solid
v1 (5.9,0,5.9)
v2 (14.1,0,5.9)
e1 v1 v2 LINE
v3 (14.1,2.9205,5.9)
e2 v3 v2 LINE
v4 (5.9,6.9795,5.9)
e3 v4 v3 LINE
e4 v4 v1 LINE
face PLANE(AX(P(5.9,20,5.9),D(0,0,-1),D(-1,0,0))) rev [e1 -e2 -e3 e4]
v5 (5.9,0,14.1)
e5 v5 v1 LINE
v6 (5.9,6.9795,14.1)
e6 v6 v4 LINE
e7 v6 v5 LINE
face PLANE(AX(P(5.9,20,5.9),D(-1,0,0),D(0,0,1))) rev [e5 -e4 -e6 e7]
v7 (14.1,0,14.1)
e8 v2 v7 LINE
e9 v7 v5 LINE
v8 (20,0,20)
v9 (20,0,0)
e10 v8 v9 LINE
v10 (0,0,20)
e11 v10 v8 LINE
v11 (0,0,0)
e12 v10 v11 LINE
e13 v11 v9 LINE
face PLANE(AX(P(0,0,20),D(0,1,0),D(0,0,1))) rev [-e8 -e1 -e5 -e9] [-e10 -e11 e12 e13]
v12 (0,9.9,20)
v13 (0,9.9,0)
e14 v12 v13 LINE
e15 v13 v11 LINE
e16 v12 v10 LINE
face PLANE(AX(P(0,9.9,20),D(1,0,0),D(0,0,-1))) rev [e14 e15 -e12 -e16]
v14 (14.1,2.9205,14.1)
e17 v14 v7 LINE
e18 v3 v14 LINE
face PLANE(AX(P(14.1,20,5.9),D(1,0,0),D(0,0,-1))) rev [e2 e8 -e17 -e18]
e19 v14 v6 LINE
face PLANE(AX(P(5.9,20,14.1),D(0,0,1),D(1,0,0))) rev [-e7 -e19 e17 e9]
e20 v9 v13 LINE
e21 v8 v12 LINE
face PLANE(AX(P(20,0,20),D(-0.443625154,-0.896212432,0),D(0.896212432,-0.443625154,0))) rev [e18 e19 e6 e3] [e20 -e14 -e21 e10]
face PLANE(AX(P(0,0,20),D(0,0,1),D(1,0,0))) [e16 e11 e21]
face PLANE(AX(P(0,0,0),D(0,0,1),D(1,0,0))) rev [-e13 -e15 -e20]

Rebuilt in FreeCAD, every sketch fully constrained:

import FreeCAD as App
import Part
import Sketcher
from FreeCAD import Vector
Q = App.Units.Quantity


def add_polygon(sketch, points):
    """Adds a closed chain of lines whose ends are joined by coincident constraints."""
    first, n = sketch.GeometryCount, len(points)
    for a, b in zip(points, points[1:] + points[:1]):
        sketch.addGeometry(Part.LineSegment(App.Vector(*a, 0), App.Vector(*b, 0)), False)
    for i in range(n):
        sketch.addConstraint(Sketcher.Constraint("Coincident", first + i, 2, first + (i + 1) % n, 1))

doc = App.newDocument("Part")
body = doc.addObject("PartDesign::Body", "Body")

sketch1 = doc.addObject("Sketcher::SketchObject", "Sketch")
body.addObject(sketch1)
sketch1.AttachmentSupport = (doc.XY_Plane, [""])
sketch1.MapMode = "FlatFace"
add_polygon(sketch1, [(0, 0), (20, 0), (0, 10)])
sketch1.addConstraint([
    Sketcher.Constraint("Horizontal", 0),
    Sketcher.Constraint("Vertical", 2),
    Sketcher.Constraint("Coincident", 2, 2, -1, 1),
    Sketcher.Constraint("DistanceX", 0, 1, 0, 2, Q("20 mm")),
    Sketcher.Constraint("DistanceY", 2, 2, 2, 1, Q("9.9 mm")),
])
pad1 = doc.addObject("PartDesign::Pad", "Pad")
body.addObject(pad1)
pad1.Profile = sketch1
pad1.Length = 20

sketch2 = doc.addObject("Sketcher::SketchObject", "Sketch001")
body.addObject(sketch2)
sketch2.AttachmentSupport = (doc.XZ_Plane, [""])
sketch2.MapMode = "FlatFace"
add_polygon(sketch2, [(6, 14), (6, 6), (14, 6), (14, 14)])
sketch2.addConstraint([
    Sketcher.Constraint("Vertical", 0),
    Sketcher.Constraint("Horizontal", 1),
    Sketcher.Constraint("Vertical", 2),
    Sketcher.Constraint("Horizontal", 3),
    Sketcher.Constraint("Equal", 3, 0),
    Sketcher.Constraint("DistanceX", 1, 1, 1, 2, Q("8.2 mm")),
    Sketcher.Constraint("DistanceX", -1, 1, 0, 2, Q("5.9 mm")),
    Sketcher.Constraint("DistanceY", -1, 1, 0, 2, Q("5.9 mm")),
])
pocket1 = doc.addObject("PartDesign::Pocket", "Pocket")
body.addObject(pocket1)
pocket1.Profile = sketch2
pocket1.Length = 20

doc.recompute()
